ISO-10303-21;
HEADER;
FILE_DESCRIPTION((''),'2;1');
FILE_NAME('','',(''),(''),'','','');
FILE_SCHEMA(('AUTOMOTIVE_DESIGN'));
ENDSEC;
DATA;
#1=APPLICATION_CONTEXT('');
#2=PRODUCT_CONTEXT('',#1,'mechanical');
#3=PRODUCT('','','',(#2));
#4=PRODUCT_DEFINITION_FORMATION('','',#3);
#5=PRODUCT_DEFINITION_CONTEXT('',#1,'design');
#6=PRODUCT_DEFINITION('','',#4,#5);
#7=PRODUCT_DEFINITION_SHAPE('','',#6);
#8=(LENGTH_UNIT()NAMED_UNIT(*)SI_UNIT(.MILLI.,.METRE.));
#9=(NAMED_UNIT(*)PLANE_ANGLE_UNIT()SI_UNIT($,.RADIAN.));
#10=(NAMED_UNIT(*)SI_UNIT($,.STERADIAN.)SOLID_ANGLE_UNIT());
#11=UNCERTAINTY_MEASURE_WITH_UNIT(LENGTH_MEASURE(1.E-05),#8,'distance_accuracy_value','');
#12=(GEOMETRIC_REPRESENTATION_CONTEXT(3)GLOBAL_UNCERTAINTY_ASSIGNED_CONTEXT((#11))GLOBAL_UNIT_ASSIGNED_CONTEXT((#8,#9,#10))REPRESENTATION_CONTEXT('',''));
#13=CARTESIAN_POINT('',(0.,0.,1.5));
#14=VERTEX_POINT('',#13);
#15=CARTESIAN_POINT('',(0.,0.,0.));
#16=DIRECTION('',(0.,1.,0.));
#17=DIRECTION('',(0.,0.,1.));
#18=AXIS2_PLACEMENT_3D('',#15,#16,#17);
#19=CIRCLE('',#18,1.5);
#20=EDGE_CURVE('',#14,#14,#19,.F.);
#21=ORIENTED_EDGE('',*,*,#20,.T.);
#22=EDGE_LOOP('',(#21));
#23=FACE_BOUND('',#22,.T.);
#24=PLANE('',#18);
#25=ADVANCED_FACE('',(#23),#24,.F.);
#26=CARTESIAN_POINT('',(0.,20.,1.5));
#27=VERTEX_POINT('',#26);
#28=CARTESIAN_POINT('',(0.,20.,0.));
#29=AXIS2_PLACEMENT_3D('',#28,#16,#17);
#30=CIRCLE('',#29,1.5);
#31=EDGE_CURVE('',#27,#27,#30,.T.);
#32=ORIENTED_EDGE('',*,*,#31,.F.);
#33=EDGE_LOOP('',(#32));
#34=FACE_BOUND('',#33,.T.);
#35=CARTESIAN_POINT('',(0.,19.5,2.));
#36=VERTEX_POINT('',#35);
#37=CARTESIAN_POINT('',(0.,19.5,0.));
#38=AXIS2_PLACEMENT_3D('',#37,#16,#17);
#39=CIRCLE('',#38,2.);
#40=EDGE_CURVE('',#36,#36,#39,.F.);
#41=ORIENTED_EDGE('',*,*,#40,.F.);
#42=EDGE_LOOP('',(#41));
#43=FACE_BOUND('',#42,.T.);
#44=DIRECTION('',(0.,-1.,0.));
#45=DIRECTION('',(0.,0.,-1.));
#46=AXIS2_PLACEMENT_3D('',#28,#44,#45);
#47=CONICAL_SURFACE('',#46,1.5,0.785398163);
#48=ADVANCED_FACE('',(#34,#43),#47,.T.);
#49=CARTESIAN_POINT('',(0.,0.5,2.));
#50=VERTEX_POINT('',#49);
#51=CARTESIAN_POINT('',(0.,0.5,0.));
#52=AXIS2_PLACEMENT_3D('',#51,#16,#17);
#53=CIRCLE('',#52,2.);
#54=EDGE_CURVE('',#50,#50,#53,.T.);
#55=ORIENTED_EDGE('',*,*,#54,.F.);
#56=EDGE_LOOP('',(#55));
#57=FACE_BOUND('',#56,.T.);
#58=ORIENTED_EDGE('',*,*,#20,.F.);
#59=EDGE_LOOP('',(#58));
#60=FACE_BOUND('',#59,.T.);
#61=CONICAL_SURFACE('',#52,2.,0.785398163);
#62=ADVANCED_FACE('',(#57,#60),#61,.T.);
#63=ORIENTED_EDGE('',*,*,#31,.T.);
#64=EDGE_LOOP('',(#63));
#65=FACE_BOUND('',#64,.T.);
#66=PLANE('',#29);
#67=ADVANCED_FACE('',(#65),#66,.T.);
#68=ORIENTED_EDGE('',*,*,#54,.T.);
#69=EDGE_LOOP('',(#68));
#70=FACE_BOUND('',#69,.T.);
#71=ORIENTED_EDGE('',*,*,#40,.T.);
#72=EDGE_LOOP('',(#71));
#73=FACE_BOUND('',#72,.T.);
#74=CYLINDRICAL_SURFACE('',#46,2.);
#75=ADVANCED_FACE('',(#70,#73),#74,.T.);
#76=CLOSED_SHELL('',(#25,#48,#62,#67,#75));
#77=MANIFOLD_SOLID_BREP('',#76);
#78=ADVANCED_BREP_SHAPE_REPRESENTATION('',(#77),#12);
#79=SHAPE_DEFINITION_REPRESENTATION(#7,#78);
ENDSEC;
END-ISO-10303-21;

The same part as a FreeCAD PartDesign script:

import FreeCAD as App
import Part
import Sketcher


def edges_at(feature, points):
    """Names of the edges that pass closest to the given points."""
    edges = feature.Shape.Edges
    near = lambda p: min(range(len(edges)), key=lambda i: edges[i].distToShape(Part.Vertex(*p))[0])
    return sorted({f"Edge{near(p) + 1}" for p in points})

doc = App.newDocument("Part")
body = doc.addObject("PartDesign::Body", "Body")

# Sketch on XZ plane
sketch1 = body.newObject("Sketcher::SketchObject", "Sketch")
sketch1.AttachmentSupport = (doc.getObject("XZ_Plane"), [""])
sketch1.MapMode = "FlatFace"
sketch1.addGeometry(Part.Circle(App.Vector(0, 0, 0), App.Vector(0, 0, 1), 2), False)
sketch1.addConstraint([
    Sketcher.Constraint("Coincident", 0, 3, -1, 1),
    Sketcher.Constraint("Diameter", 0, 4.0),
])
pad1 = body.newObject("PartDesign::Pad", "Pad")
pad1.Profile = sketch1
pad1.Length = 20
pad1.Reversed = True
doc.recompute()

chamfer = body.newObject("PartDesign::Chamfer", "Chamfer")
chamfer.Base = (pad1, edges_at(pad1, [(0, 20, -2)]))
chamfer.Size = 0.5
doc.recompute()

chamfer2 = body.newObject("PartDesign::Chamfer", "Chamfer001")
chamfer2.Base = (chamfer, edges_at(chamfer, [(0, 0, -2)]))
chamfer2.Size = 0.5

doc.recompute()
